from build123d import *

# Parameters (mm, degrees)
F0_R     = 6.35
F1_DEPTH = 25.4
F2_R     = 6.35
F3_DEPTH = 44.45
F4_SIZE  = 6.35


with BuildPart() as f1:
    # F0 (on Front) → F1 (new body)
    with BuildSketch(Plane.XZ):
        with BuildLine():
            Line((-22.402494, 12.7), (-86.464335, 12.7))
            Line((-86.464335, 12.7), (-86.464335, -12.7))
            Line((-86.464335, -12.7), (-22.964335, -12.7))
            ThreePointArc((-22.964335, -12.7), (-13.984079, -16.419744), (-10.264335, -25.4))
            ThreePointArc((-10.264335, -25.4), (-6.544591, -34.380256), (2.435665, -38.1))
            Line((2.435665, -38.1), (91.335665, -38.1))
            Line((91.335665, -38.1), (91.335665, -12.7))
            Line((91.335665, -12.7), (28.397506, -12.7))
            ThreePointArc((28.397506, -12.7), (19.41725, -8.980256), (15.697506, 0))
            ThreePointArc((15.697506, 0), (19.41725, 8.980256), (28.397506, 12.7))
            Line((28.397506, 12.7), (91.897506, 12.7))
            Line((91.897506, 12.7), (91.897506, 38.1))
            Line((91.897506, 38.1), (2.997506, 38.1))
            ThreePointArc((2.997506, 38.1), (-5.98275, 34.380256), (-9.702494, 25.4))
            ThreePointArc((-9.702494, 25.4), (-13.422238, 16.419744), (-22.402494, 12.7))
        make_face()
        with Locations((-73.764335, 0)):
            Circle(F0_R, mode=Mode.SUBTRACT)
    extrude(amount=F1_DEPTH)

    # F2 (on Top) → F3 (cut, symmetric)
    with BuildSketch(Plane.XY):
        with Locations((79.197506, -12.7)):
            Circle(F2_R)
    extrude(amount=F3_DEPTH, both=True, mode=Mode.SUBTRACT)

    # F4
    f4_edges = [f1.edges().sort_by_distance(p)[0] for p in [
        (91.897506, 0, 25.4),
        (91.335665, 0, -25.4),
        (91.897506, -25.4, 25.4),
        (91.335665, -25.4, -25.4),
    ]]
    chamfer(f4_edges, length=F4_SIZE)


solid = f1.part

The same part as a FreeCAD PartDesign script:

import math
import FreeCAD as App
import Part
import Sketcher
from FreeCAD import Vector
Q = App.Units.Quantity


def edges_at(feature, points):
    """Names of the edges that pass closest to the given points."""
    edges = feature.Shape.Edges
    near = lambda p: min(range(len(edges)), key=lambda i: edges[i].distToShape(Part.Vertex(*p))[0])
    return sorted({f"Edge{near(p) + 1}" for p in points})

doc = App.newDocument("Part")
body = doc.addObject("PartDesign::Body", "Body")

sketch1 = body.newObject("Sketcher::SketchObject", "Sketch")
sketch1.AttachmentSupport = (doc.getObject("XZ_Plane"), [""])
sketch1.MapMode = "FlatFace"
sketch1.addGeometry([
    Part.LineSegment(Vector(-22, 13, 0), Vector(-86, 13, 0)),
    Part.LineSegment(Vector(-86, 13, 0), Vector(-86, -13, 0)),
    Part.LineSegment(Vector(-86, -13, 0), Vector(-23, -13, 0)),
    Part.ArcOfCircle(Part.Circle(Vector(-23, -25, 0), Vector(0, 0, 1), 13), math.radians(0), math.radians(90)),
    Part.ArcOfCircle(Part.Circle(Vector(2, -25, 0), Vector(0, 0, 1), 13), math.radians(-180), math.radians(-90)),
    Part.LineSegment(Vector(2, -38, 0), Vector(91, -38, 0)),
    Part.LineSegment(Vector(91, -38, 0), Vector(91, -13, 0)),
    Part.LineSegment(Vector(91, -13, 0), Vector(28, -13, 0)),
    Part.ArcOfCircle(Part.Circle(Vector(28, 0, 0), Vector(0, 0, 1), 13), math.radians(-180), math.radians(-90)),
    Part.ArcOfCircle(Part.Circle(Vector(28, 0, 0), Vector(0, 0, 1), 13), math.radians(90), math.radians(180)),
    Part.LineSegment(Vector(28, 13, 0), Vector(92, 13, 0)),
    Part.LineSegment(Vector(92, 13, 0), Vector(92, 38, 0)),
    Part.LineSegment(Vector(92, 38, 0), Vector(3, 38, 0)),
    Part.ArcOfCircle(Part.Circle(Vector(3, 25, 0), Vector(0, 0, 1), 13), math.radians(90), math.radians(180)),
    Part.ArcOfCircle(Part.Circle(Vector(-22, 25, 0), Vector(0, 0, 1), 13), math.radians(-90), math.radians(0)),
    Part.Circle(Vector(-74, 0, 0), Vector(0, 0, 1), 6),
], False)
sketch1.addConstraint([
    Sketcher.Constraint("Coincident", 0, 2, 1, 1),
    Sketcher.Constraint("Coincident", 1, 2, 2, 1),
    Sketcher.Constraint("Tangent", 2, 2, 3, 2),
    Sketcher.Constraint("Tangent", 3, 1, 4, 1),
    Sketcher.Constraint("Tangent", 4, 2, 5, 1),
    Sketcher.Constraint("Coincident", 5, 2, 6, 1),
    Sketcher.Constraint("Coincident", 6, 2, 7, 1),
    Sketcher.Constraint("Tangent", 7, 2, 8, 2),
    Sketcher.Constraint("Tangent", 8, 1, 9, 2),
    Sketcher.Constraint("Tangent", 9, 1, 10, 1),
    Sketcher.Constraint("Coincident", 10, 2, 11, 1),
    Sketcher.Constraint("Coincident", 11, 2, 12, 1),
    Sketcher.Constraint("Tangent", 12, 2, 13, 1),
    Sketcher.Constraint("Tangent", 13, 2, 14, 2),
    Sketcher.Constraint("Tangent", 14, 1, 0, 1),
    Sketcher.Constraint("Horizontal", 0),
    Sketcher.Constraint("Vertical", 1),
    Sketcher.Constraint("Horizontal", 2),
    Sketcher.Constraint("Horizontal", 5),
    Sketcher.Constraint("Vertical", 6),
    Sketcher.Constraint("Horizontal", 7),
    Sketcher.Constraint("Horizontal", 10),
    Sketcher.Constraint("Vertical", 11),
    Sketcher.Constraint("Horizontal", 12),
    Sketcher.Constraint("Equal", 3, 4),
    Sketcher.Constraint("Equal", 4, 8),
    Sketcher.Constraint("Equal", 8, 9),
    Sketcher.Constraint("Equal", 9, 13),
    Sketcher.Constraint("Equal", 13, 14),
    Sketcher.Constraint("PointOnObject", 8, 3, -1),
    Sketcher.Constraint("PointOnObject", 15, 3, -1),
    Sketcher.Constraint("PointOnObject", 8, 1, -1),
    Sketcher.Constraint("Horizontal", 3, 3, 4, 3),
    Sketcher.Constraint("Horizontal", 13, 3, 14, 3),
    Sketcher.Constraint("Horizontal", 2, 2, 6, 2),
    Sketcher.Constraint("Horizontal", 0, 2, 9, 1),
    Sketcher.Constraint("Equal", 2, 10),
    Sketcher.Constraint("Equal", 5, 12),
    Sketcher.Constraint("Diameter", 15, Q("0.5 in")),
    Sketcher.Constraint("Radius", 3, Q("0.5 in")),
    Sketcher.Constraint("DistanceX", 2, 1, 2, 2, Q("2.5 in")),
    Sketcher.Constraint("DistanceX", 5, 1, 5, 2, Q("3.5 in")),
    Sketcher.Constraint("DistanceX", 15, 3, 3, 3, Q("2 in")),
    Sketcher.Constraint("DistanceX", 0, 2, 0, 1, 64.061841),
    Sketcher.Constraint("DistanceX", 3, 3, -1, 1, 22.964335),
])
pad1 = body.newObject("PartDesign::Pad", "Pad")
pad1.Profile = sketch1
pad1.Length = Q("1 in")

sketch2 = body.newObject("Sketcher::SketchObject", "Sketch001")
sketch2.AttachmentSupport = (doc.getObject("XY_Plane"), [""])
sketch2.MapMode = "FlatFace"
sketch2.addGeometry(Part.Circle(Vector(79, -13, 0), Vector(0, 0, 1), 6), False)
sketch2.addConstraint([
    Sketcher.Constraint("Diameter", 0, Q("0.5 in")),
    Sketcher.Constraint("DistanceY", 0, 3, -1, 1, Q("0.5 in")),
    Sketcher.Constraint("DistanceX", -1, 1, 0, 3, 79.197506),
])
pocket1 = body.newObject("PartDesign::Pocket", "Pocket")
pocket1.Profile = sketch2
pocket1.Length = Q("3.5 in")
pocket1.Midplane = True
doc.recompute()

chamfer = body.newObject("PartDesign::Chamfer", "Chamfer")
chamfer.Base = (pocket1, edges_at(pocket1, [
    (91.898, 0, 25.4),
    (91.336, 0, -25.4),
    (91.898, -25.4, 25.4),
    (91.336, -25.4, -25.4),
]))
chamfer.Size = Q("0.25 in")

doc.recompute()
